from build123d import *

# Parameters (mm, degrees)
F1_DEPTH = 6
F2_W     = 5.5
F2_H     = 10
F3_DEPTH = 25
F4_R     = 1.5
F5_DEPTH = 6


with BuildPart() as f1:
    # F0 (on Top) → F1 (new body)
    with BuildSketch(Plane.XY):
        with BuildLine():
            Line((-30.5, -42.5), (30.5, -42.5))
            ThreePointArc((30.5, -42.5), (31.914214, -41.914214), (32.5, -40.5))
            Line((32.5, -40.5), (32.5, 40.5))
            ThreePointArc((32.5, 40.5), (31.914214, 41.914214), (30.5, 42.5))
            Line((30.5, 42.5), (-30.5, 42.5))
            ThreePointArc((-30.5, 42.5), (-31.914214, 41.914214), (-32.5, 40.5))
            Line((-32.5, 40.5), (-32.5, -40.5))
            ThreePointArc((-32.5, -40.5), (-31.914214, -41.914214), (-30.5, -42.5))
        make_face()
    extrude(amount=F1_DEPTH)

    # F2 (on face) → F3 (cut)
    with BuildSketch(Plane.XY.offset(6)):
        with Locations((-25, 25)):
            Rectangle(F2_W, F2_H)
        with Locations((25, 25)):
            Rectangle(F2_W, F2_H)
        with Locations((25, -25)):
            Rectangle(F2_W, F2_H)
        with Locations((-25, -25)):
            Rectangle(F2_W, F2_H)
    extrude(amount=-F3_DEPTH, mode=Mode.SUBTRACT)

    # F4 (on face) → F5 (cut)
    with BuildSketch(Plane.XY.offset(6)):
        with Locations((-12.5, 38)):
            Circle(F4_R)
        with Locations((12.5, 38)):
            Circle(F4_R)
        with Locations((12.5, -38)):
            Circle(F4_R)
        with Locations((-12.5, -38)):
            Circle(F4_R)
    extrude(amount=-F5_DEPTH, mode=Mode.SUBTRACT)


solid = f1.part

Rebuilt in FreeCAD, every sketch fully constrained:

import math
import FreeCAD as App
import Part
import Sketcher
Q = App.Units.Quantity


def add_polygon(sketch, points):
    """Adds a closed chain of lines whose ends are joined by coincident constraints."""
    first, n = sketch.GeometryCount, len(points)
    for a, b in zip(points, points[1:] + points[:1]):
        sketch.addGeometry(Part.LineSegment(App.Vector(*a, 0), App.Vector(*b, 0)), False)
    for i in range(n):
        sketch.addConstraint(Sketcher.Constraint("Coincident", first + i, 2, first + (i + 1) % n, 1))

doc = App.newDocument("Part")
body = doc.addObject("PartDesign::Body", "Body")

sketch1 = body.newObject("Sketcher::SketchObject", "Sketch")
sketch1.AttachmentSupport = (doc.getObject("XY_Plane"), [""])
sketch1.MapMode = "FlatFace"
sketch1.addGeometry(Part.LineSegment(App.Vector(-30.5, -42.5, 0), App.Vector(30.5, -42.5, 0)), False)
sketch1.addGeometry(Part.ArcOfCircle(Part.Circle(App.Vector(30.5, -40.5, 0), App.Vector(0, 0, 1), 2), math.radians(-90), math.radians(0)), False)
sketch1.addGeometry(Part.LineSegment(App.Vector(32.5, -40.5, 0), App.Vector(32.5, 40.5, 0)), False)
sketch1.addGeometry(Part.ArcOfCircle(Part.Circle(App.Vector(30.5, 40.5, 0), App.Vector(0, 0, 1), 2), math.radians(0), math.radians(90)), False)
sketch1.addGeometry(Part.LineSegment(App.Vector(30.5, 42.5, 0), App.Vector(-30.5, 42.5, 0)), False)
sketch1.addGeometry(Part.ArcOfCircle(Part.Circle(App.Vector(-30.5, 40.5, 0), App.Vector(0, 0, 1), 2), math.radians(90), math.radians(180)), False)
sketch1.addGeometry(Part.LineSegment(App.Vector(-32.5, 40.5, 0), App.Vector(-32.5, -40.5, 0)), False)
sketch1.addGeometry(Part.ArcOfCircle(Part.Circle(App.Vector(-30.5, -40.5, 0), App.Vector(0, 0, 1), 2), math.radians(180), math.radians(270)), False)
sketch1.addConstraint(Sketcher.Constraint("Tangent", 0, 2, 1, 1))
sketch1.addConstraint(Sketcher.Constraint("Tangent", 1, 2, 2, 1))
sketch1.addConstraint(Sketcher.Constraint("Tangent", 2, 2, 3, 1))
sketch1.addConstraint(Sketcher.Constraint("Tangent", 3, 2, 4, 1))
sketch1.addConstraint(Sketcher.Constraint("Tangent", 4, 2, 5, 1))
sketch1.addConstraint(Sketcher.Constraint("Tangent", 5, 2, 6, 1))
sketch1.addConstraint(Sketcher.Constraint("Tangent", 6, 2, 7, 1))
sketch1.addConstraint(Sketcher.Constraint("Tangent", 7, 2, 0, 1))
sketch1.addConstraint(Sketcher.Constraint("Horizontal", 0))
sketch1.addConstraint(Sketcher.Constraint("Vertical", 2))
sketch1.addConstraint(Sketcher.Constraint("Horizontal", 4))
sketch1.addConstraint(Sketcher.Constraint("Vertical", 6))
sketch1.addConstraint(Sketcher.Constraint("Equal", 1, 3))
sketch1.addConstraint(Sketcher.Constraint("Equal", 3, 5))
sketch1.addConstraint(Sketcher.Constraint("Equal", 5, 7))
sketch1.addConstraint(Sketcher.Constraint("Symmetric", 1, 3, 5, 3, -1, 1))
sketch1.addConstraint(Sketcher.Constraint("Radius", 1, Q("1.999999 mm")))
sketch1.addConstraint(Sketcher.Constraint("DistanceX", 0, 1, 0, 2, Q("61 mm")))
sketch1.addConstraint(Sketcher.Constraint("DistanceY", 2, 1, 2, 2, Q("81 mm")))
pad1 = body.newObject("PartDesign::Pad", "Pad")
pad1.Profile = sketch1
pad1.Length = 6

sketch2 = body.newObject("Sketcher::SketchObject", "Sketch001")
sketch2.AttachmentSupport = (doc.getObject("XY_Plane"), [""])
sketch2.MapMode = "FlatFace"
sketch2.AttachmentOffset = App.Placement(App.Vector(0, 0, 6), App.Rotation())
add_polygon(sketch2, [(-28, 30), (-28, 20), (-22, 20), (-22, 30)])
add_polygon(sketch2, [(22, 30), (22, 20), (28, 20), (28, 30)])
add_polygon(sketch2, [(22, -20), (22, -30), (28, -30), (28, -20)])
add_polygon(sketch2, [(-28, -20), (-28, -30), (-22, -30), (-22, -20)])
sketch2.addConstraint(Sketcher.Constraint("Vertical", 0))
sketch2.addConstraint(Sketcher.Constraint("Horizontal", 1))
sketch2.addConstraint(Sketcher.Constraint("Vertical", 2))
sketch2.addConstraint(Sketcher.Constraint("Horizontal", 3))
sketch2.addConstraint(Sketcher.Constraint("Vertical", 4))
sketch2.addConstraint(Sketcher.Constraint("Horizontal", 5))
sketch2.addConstraint(Sketcher.Constraint("Vertical", 6))
sketch2.addConstraint(Sketcher.Constraint("Horizontal", 7))
sketch2.addConstraint(Sketcher.Constraint("Vertical", 8))
sketch2.addConstraint(Sketcher.Constraint("Horizontal", 9))
sketch2.addConstraint(Sketcher.Constraint("Vertical", 10))
sketch2.addConstraint(Sketcher.Constraint("Horizontal", 11))
sketch2.addConstraint(Sketcher.Constraint("Vertical", 12))
sketch2.addConstraint(Sketcher.Constraint("Horizontal", 13))
sketch2.addConstraint(Sketcher.Constraint("Vertical", 14))
sketch2.addConstraint(Sketcher.Constraint("Horizontal", 15))
sketch2.addConstraint(Sketcher.Constraint("Symmetric", 2, 2, 8, 2, -1, 1))
sketch2.addConstraint(Sketcher.Constraint("Symmetric", 0, 2, 10, 2, -1, 1))
sketch2.addConstraint(Sketcher.Constraint("Symmetric", 6, 2, 12, 2, -1, 1))
sketch2.addConstraint(Sketcher.Constraint("Symmetric", 4, 2, 14, 2, -1, 1))
sketch2.addConstraint(Sketcher.Constraint("Symmetric", 1, 2, 4, 2, -2))
sketch2.addConstraint(Sketcher.Constraint("Symmetric", 3, 2, 6, 2, -2))
sketch2.addConstraint(Sketcher.Constraint("DistanceY", 0, 2, 0, 1, Q("10 mm")))
sketch2.addConstraint(Sketcher.Constraint("DistanceX", 1, 1, 1, 2, Q("5.5 mm")))
sketch2.addConstraint(Sketcher.Constraint("DistanceY", -1, 1, 0, 2, Q("20 mm")))
sketch2.addConstraint(Sketcher.Constraint("DistanceX", 0, 2, 4, 2, Q("50 mm")))
pocket1 = body.newObject("PartDesign::Pocket", "Pocket")
pocket1.Profile = sketch2
pocket1.Length = 25

sketch3 = body.newObject("Sketcher::SketchObject", "Sketch002")
sketch3.AttachmentSupport = (doc.getObject("XY_Plane"), [""])
sketch3.MapMode = "FlatFace"
sketch3.AttachmentOffset = App.Placement(App.Vector(0, 0, 6), App.Rotation())
sketch3.addGeometry(Part.Circle(App.Vector(-12.5, 38, 0), App.Vector(0, 0, 1), 1.5), False)
sketch3.addGeometry(Part.Circle(App.Vector(12.5, 38, 0), App.Vector(0, 0, 1), 1.5), False)
sketch3.addGeometry(Part.Circle(App.Vector(12.5, -38, 0), App.Vector(0, 0, 1), 1.5), False)
sketch3.addGeometry(Part.Circle(App.Vector(-12.5, -38, 0), App.Vector(0, 0, 1), 1.5), False)
sketch3.addConstraint(Sketcher.Constraint("Equal", 0, 1))
sketch3.addConstraint(Sketcher.Constraint("Equal", 1, 2))
sketch3.addConstraint(Sketcher.Constraint("Equal", 2, 3))
sketch3.addConstraint(Sketcher.Constraint("Symmetric", 0, 3, 2, 3, -1, 1))
sketch3.addConstraint(Sketcher.Constraint("Symmetric", 1, 3, 3, 3, -1, 1))
sketch3.addConstraint(Sketcher.Constraint("Symmetric", 0, 3, 1, 3, -2))
sketch3.addConstraint(Sketcher.Constraint("Diameter", 0, Q("3 mm")))
sketch3.addConstraint(Sketcher.Constraint("DistanceY", -1, 1, 0, 3, Q("38 mm")))
sketch3.addConstraint(Sketcher.Constraint("DistanceX", 0, 3, 1, 3, Q("25 mm")))
pocket2 = body.newObject("PartDesign::Pocket", "Pocket001")
pocket2.Profile = sketch3
pocket2.Length = 6

doc.recompute()
